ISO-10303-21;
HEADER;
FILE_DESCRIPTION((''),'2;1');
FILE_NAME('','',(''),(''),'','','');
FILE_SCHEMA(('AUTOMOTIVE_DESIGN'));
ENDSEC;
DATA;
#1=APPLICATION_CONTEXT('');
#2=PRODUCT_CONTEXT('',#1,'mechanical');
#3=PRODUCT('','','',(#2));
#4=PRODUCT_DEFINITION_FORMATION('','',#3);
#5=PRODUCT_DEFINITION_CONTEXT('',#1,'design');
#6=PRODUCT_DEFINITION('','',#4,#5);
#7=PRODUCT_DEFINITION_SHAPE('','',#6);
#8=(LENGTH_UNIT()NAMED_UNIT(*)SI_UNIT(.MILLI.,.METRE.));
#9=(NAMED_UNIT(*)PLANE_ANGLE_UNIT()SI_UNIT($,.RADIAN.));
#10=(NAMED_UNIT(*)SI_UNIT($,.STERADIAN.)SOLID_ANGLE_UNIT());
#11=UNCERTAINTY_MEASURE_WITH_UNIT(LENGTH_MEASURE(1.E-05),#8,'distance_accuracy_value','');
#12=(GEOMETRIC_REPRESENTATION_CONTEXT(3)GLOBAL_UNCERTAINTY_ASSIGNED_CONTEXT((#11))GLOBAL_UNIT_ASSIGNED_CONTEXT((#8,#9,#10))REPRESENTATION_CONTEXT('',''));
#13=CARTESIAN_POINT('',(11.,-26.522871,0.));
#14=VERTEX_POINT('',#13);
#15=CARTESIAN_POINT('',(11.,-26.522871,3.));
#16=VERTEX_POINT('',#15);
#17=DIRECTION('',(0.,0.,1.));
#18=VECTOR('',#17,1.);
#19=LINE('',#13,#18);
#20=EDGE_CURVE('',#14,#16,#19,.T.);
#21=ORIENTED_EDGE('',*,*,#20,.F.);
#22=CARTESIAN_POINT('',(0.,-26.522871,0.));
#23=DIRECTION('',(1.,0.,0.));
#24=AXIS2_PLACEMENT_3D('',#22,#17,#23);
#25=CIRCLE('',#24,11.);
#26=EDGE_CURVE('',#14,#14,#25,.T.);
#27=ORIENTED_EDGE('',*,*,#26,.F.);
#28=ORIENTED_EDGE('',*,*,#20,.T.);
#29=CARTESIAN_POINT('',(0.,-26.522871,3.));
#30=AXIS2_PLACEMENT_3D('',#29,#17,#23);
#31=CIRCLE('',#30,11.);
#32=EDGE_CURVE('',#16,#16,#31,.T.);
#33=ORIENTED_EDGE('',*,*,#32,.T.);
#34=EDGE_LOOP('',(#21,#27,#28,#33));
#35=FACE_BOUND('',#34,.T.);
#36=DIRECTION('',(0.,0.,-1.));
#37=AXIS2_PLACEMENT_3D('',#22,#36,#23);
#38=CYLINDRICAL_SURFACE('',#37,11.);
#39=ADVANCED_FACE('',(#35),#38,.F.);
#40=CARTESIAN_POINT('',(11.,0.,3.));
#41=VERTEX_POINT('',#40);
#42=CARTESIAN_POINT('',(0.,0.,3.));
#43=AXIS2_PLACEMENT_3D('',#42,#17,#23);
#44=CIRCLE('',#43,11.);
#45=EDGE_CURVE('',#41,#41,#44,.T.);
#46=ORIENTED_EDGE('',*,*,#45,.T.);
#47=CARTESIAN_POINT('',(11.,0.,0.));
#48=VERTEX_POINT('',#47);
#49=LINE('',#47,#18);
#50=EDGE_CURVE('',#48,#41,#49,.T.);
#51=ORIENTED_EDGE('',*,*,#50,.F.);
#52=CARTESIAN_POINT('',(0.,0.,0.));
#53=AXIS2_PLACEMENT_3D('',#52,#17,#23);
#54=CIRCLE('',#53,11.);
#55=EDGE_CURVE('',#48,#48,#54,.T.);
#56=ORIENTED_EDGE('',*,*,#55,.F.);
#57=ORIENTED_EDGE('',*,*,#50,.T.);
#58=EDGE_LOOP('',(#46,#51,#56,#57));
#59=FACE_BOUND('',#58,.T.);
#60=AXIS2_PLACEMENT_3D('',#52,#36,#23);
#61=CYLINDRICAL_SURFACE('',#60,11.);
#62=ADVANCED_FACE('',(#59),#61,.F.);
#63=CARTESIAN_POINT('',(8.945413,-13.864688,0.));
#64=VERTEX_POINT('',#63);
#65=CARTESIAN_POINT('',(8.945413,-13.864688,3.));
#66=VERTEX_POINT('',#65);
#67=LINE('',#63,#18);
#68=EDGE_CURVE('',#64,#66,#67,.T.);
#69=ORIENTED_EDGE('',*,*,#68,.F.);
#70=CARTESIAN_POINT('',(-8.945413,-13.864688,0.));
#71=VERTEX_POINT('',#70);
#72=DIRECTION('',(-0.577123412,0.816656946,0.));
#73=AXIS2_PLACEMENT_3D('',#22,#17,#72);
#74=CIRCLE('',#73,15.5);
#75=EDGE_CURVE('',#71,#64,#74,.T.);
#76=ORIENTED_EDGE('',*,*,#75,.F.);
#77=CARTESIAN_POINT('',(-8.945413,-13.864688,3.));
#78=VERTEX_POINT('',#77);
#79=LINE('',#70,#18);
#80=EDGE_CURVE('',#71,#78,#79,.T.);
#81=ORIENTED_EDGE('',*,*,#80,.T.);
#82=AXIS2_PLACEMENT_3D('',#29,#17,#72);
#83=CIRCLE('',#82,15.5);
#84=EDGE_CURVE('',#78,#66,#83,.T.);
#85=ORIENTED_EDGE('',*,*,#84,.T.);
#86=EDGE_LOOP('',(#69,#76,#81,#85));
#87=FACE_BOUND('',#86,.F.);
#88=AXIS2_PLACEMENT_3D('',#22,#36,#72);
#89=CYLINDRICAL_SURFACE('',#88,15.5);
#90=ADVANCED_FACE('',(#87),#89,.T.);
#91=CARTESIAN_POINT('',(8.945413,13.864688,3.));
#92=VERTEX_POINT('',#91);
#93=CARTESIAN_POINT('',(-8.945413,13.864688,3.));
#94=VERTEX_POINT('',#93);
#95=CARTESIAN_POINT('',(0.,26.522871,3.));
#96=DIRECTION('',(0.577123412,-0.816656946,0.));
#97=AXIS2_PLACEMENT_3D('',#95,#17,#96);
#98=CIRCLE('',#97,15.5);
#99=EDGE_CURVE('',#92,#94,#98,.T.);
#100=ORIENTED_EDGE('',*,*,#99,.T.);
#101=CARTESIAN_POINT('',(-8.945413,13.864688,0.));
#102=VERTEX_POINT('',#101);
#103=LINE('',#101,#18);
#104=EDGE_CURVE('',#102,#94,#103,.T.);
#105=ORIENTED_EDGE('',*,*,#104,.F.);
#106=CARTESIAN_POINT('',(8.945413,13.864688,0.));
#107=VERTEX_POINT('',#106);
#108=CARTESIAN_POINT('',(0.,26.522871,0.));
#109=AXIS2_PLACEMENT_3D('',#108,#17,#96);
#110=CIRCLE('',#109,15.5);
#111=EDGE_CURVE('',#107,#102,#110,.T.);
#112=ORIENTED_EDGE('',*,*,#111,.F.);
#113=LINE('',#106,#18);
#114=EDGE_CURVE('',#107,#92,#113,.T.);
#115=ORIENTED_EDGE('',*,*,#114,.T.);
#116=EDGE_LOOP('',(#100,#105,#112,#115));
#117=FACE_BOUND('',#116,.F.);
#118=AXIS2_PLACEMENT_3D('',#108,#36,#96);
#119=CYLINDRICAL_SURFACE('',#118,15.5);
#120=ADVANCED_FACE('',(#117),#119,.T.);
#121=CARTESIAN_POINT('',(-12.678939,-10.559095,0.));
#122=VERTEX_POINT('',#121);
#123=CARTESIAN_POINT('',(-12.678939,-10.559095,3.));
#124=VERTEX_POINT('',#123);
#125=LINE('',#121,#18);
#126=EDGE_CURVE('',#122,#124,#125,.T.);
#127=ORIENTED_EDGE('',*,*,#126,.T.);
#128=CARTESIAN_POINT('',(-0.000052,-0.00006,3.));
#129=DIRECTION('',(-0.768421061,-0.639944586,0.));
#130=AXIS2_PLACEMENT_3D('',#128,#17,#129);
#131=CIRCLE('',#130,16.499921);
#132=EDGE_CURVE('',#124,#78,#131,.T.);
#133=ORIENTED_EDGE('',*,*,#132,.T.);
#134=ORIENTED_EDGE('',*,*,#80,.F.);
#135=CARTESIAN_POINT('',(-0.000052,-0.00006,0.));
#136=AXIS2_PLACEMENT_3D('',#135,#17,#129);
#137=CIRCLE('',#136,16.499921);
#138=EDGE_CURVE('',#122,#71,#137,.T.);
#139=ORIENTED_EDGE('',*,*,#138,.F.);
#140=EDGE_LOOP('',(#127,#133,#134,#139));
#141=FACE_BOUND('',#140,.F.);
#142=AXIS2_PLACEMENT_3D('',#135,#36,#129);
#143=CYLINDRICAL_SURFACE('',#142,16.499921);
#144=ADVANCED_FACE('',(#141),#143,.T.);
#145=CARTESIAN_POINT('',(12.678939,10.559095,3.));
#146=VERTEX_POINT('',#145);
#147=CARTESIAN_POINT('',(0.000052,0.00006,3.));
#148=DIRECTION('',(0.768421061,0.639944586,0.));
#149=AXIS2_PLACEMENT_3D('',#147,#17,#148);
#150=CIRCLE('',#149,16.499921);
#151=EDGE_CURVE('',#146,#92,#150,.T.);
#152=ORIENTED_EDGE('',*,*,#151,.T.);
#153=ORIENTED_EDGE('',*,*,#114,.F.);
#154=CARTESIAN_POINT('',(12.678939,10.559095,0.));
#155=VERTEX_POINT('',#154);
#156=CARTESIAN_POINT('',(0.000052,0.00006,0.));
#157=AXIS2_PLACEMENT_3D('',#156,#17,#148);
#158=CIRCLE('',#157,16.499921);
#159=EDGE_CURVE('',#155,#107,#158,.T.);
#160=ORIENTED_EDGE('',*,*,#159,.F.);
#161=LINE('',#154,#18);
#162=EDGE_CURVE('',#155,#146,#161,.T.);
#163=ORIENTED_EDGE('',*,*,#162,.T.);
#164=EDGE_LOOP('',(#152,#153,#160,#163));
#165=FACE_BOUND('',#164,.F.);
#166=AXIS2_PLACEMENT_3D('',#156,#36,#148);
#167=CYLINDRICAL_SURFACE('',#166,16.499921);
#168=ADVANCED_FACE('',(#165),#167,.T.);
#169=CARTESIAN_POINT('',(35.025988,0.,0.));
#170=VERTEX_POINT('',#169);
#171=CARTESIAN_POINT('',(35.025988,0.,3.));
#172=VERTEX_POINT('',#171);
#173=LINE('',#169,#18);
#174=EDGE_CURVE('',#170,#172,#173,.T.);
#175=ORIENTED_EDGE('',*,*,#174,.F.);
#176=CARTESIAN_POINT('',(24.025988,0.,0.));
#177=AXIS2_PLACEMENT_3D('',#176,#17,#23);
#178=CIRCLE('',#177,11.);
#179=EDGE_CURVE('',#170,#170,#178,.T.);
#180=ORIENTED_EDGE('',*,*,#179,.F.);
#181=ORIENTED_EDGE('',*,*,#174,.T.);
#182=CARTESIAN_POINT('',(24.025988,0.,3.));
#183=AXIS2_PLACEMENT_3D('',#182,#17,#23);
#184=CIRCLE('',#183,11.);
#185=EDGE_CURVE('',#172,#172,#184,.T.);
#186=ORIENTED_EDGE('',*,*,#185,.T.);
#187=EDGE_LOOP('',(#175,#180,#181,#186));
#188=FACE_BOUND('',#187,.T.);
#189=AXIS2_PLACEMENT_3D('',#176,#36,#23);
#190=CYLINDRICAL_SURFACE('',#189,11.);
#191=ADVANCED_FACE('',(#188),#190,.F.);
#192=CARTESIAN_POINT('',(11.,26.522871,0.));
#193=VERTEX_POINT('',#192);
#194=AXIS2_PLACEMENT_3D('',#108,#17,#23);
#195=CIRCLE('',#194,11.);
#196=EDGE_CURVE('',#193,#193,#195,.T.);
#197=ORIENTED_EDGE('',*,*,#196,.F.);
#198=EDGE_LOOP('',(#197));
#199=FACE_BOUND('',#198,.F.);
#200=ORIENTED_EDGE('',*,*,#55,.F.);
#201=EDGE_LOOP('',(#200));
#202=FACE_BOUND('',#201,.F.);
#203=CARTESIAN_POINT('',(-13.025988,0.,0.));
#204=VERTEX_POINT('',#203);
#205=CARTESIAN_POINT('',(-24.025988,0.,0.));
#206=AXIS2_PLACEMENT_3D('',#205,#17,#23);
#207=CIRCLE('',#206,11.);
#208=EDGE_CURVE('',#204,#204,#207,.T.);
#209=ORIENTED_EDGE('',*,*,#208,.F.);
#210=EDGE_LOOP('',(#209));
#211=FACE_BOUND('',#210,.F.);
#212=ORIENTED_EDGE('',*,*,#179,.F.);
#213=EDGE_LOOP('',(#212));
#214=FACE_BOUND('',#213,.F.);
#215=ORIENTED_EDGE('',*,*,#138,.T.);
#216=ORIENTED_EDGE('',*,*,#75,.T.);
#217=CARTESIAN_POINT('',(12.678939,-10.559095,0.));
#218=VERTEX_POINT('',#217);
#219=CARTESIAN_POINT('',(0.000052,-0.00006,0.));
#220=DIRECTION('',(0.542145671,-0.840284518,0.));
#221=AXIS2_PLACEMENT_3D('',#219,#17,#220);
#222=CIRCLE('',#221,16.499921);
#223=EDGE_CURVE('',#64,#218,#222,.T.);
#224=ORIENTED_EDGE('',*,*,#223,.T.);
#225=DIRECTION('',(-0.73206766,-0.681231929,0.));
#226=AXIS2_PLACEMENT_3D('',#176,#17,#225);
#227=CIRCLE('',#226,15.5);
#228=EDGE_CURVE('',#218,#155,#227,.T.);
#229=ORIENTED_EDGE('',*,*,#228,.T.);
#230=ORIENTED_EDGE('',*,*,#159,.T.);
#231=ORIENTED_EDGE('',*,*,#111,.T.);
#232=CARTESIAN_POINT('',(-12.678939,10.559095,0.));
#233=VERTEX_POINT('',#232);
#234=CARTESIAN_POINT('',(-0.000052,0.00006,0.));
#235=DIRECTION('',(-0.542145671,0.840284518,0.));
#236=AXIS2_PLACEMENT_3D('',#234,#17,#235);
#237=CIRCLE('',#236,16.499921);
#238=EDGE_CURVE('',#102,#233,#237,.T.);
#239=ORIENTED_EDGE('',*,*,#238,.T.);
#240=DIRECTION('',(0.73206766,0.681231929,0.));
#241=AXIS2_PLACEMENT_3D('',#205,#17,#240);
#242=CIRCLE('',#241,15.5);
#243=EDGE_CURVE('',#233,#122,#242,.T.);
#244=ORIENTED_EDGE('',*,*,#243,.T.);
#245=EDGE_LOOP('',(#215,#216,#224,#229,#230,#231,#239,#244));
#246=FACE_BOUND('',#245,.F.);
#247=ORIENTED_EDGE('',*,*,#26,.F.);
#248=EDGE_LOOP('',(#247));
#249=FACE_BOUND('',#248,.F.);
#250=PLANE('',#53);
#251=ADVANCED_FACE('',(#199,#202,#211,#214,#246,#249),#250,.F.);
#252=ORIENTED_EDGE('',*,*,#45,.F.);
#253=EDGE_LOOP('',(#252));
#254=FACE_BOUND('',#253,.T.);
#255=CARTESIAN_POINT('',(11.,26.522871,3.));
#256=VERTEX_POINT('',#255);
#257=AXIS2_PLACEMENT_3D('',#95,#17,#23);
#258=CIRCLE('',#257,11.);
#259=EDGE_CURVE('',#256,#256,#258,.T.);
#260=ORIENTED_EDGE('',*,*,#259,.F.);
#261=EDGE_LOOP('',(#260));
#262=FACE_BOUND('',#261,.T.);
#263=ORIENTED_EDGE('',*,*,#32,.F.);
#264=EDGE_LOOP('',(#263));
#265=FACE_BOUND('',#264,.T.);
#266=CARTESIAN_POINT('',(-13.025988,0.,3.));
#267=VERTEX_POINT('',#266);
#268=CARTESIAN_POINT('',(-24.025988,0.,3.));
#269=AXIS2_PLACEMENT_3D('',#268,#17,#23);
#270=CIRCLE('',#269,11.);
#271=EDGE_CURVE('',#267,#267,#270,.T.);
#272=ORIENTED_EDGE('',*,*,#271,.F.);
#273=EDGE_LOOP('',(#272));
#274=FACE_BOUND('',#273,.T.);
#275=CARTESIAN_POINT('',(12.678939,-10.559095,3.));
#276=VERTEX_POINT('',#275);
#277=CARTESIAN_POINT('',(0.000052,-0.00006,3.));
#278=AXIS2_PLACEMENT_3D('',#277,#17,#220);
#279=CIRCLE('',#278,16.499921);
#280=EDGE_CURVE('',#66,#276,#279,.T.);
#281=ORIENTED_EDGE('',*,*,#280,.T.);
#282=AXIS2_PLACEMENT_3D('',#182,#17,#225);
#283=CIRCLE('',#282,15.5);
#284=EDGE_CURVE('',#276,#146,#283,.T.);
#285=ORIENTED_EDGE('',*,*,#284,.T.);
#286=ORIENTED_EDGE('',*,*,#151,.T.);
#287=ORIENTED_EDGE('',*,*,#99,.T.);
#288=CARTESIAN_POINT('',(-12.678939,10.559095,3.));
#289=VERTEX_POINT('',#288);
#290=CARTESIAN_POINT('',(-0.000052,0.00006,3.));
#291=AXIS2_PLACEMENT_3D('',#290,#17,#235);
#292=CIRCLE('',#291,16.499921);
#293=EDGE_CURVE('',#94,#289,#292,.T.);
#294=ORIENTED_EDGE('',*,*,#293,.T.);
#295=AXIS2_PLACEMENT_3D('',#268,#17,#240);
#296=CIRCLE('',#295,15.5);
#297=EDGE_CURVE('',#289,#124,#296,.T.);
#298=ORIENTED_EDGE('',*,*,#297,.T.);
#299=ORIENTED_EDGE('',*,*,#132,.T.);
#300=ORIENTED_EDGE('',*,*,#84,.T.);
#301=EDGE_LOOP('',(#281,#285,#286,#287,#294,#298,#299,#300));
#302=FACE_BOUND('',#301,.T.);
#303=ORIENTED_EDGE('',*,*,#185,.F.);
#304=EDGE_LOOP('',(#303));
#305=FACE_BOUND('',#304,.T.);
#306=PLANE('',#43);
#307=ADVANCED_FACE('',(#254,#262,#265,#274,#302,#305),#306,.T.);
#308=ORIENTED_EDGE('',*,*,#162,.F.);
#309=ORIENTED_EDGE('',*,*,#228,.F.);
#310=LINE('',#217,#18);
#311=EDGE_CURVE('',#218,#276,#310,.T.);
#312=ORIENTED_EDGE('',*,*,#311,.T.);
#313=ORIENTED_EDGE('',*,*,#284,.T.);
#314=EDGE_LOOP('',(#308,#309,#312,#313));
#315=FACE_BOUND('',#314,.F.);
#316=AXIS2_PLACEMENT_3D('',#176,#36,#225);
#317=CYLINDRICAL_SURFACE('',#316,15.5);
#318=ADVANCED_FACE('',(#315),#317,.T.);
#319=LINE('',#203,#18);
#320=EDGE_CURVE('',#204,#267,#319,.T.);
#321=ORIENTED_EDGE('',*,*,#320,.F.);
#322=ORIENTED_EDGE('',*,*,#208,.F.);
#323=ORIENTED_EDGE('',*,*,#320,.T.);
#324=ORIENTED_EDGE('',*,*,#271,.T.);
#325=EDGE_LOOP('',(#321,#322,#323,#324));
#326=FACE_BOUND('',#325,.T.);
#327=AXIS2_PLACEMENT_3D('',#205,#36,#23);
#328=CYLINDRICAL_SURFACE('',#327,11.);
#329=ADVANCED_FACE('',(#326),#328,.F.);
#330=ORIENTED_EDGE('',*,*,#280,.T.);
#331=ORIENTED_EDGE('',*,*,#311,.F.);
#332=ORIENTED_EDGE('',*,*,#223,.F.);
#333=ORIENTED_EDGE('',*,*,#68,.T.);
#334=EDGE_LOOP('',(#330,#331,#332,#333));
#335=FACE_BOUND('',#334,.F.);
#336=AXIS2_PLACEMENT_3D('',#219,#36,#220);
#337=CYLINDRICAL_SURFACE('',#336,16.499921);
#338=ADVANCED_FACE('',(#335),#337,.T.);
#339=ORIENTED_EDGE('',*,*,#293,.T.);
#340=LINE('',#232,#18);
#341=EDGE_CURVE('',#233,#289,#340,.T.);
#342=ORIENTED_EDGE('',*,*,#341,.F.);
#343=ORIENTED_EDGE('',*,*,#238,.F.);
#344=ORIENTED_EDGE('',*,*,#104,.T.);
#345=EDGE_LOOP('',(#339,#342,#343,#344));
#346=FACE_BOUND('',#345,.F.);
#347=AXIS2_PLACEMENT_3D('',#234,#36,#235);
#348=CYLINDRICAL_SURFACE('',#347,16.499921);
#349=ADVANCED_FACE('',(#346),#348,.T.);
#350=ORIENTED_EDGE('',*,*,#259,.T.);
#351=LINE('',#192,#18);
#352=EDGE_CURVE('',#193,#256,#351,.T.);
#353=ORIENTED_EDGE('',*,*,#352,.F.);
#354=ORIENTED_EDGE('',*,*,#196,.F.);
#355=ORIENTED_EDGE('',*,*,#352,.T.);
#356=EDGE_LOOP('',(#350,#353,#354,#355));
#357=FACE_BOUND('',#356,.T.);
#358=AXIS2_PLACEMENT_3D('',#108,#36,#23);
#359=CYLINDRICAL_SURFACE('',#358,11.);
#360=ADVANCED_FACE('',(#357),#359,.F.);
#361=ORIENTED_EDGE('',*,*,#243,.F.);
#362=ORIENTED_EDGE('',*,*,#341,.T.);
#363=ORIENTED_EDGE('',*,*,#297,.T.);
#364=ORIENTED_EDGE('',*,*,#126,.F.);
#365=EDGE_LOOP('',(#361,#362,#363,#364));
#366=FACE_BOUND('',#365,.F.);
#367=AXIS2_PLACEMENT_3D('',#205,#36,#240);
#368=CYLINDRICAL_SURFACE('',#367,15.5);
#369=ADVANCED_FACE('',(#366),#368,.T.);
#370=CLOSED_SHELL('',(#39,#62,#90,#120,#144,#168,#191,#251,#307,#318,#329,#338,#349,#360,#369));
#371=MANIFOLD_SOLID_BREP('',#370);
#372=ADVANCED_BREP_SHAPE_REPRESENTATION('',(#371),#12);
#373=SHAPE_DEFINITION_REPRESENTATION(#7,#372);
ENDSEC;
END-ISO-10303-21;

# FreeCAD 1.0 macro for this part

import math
import FreeCAD as App
import Part
import Sketcher
from FreeCAD import Vector
Q = App.Units.Quantity

doc = App.newDocument("Part")
body = doc.addObject("PartDesign::Body", "Body")

sketch1 = body.newObject("Sketcher::SketchObject", "Sketch")
sketch1.AttachmentSupport = (doc.getObject("XY_Plane"), [""])
sketch1.MapMode = "FlatFace"
sketch1.addGeometry(Part.ArcOfCircle(Part.Circle(Vector(24, 0, 0), Vector(0, 0, 1), 15.5), math.radians(-137), math.radians(137)), False)
sketch1.addGeometry(Part.ArcOfCircle(Part.Circle(Vector(0, 0, 0), Vector(0, 0, 1), 16.5), math.radians(39.79), math.radians(57.17)), False)
sketch1.addGeometry(Part.ArcOfCircle(Part.Circle(Vector(0, 26.5, 0), Vector(0, 0, 1), 15.5), math.radians(-55), math.radians(235)), False)
sketch1.addGeometry(Part.ArcOfCircle(Part.Circle(Vector(0, 0, 0), Vector(0, 0, 1), 16.5), math.radians(122.83), math.radians(140.21)), False)
sketch1.addGeometry(Part.ArcOfCircle(Part.Circle(Vector(-24, 0, 0), Vector(0, 0, 1), 15.5), math.radians(43), math.radians(317)), False)
sketch1.addGeometry(Part.ArcOfCircle(Part.Circle(Vector(0, 0, 0), Vector(0, 0, 1), 16.5), math.radians(-140.21), math.radians(-122.83)), False)
sketch1.addGeometry(Part.ArcOfCircle(Part.Circle(Vector(0, -26.5, 0), Vector(0, 0, 1), 15.5), math.radians(125), math.radians(415)), False)
sketch1.addGeometry(Part.ArcOfCircle(Part.Circle(Vector(0, 0, 0), Vector(0, 0, 1), 16.5), math.radians(-57.17), math.radians(-39.79)), False)
sketch1.addGeometry(Part.Circle(Vector(0, -26.5, 0), Vector(0, 0, 1), 11), False)
sketch1.addGeometry(Part.Circle(Vector(-24, 0, 0), Vector(0, 0, 1), 11), False)
sketch1.addGeometry(Part.Circle(Vector(0, 0, 0), Vector(0, 0, 1), 11), False)
sketch1.addGeometry(Part.Circle(Vector(24, 0, 0), Vector(0, 0, 1), 11), False)
sketch1.addGeometry(Part.Circle(Vector(0, 26.5, 0), Vector(0, 0, 1), 11), False)
sketch1.addConstraint(Sketcher.Constraint("Coincident", 0, 2, 1, 1))
sketch1.addConstraint(Sketcher.Constraint("Coincident", 1, 2, 2, 1))
sketch1.addConstraint(Sketcher.Constraint("Coincident", 2, 2, 3, 1))
sketch1.addConstraint(Sketcher.Constraint("Coincident", 3, 2, 4, 1))
sketch1.addConstraint(Sketcher.Constraint("Coincident", 4, 2, 5, 1))
sketch1.addConstraint(Sketcher.Constraint("Coincident", 5, 2, 6, 1))
sketch1.addConstraint(Sketcher.Constraint("Coincident", 6, 2, 7, 1))
sketch1.addConstraint(Sketcher.Constraint("Coincident", 7, 2, 0, 1))
sketch1.addConstraint(Sketcher.Constraint("Coincident", 10, 3, -1, 1))
sketch1.addConstraint(Sketcher.Constraint("Coincident", 8, 3, 6, 3))
sketch1.addConstraint(Sketcher.Constraint("Coincident", 9, 3, 4, 3))
sketch1.addConstraint(Sketcher.Constraint("Coincident", 11, 3, 0, 3))
sketch1.addConstraint(Sketcher.Constraint("Coincident", 12, 3, 2, 3))
sketch1.addConstraint(Sketcher.Constraint("Equal", 0, 2))
sketch1.addConstraint(Sketcher.Constraint("Equal", 1, 3))
sketch1.addConstraint(Sketcher.Constraint("Equal", 2, 4))
sketch1.addConstraint(Sketcher.Constraint("Equal", 3, 5))
sketch1.addConstraint(Sketcher.Constraint("Equal", 4, 6))
sketch1.addConstraint(Sketcher.Constraint("Equal", 5, 7))
sketch1.addConstraint(Sketcher.Constraint("Equal", 8, 9))
sketch1.addConstraint(Sketcher.Constraint("Equal", 9, 10))
sketch1.addConstraint(Sketcher.Constraint("Equal", 10, 11))
sketch1.addConstraint(Sketcher.Constraint("Equal", 11, 12))
sketch1.addConstraint(Sketcher.Constraint("Symmetric", 0, 3, 4, 3, -1, 1))
sketch1.addConstraint(Sketcher.Constraint("Symmetric", 1, 3, 5, 3, -1, 1))
sketch1.addConstraint(Sketcher.Constraint("Symmetric", 2, 3, 6, 3, -1, 1))
sketch1.addConstraint(Sketcher.Constraint("Symmetric", 3, 3, 7, 3, -1, 1))
sketch1.addConstraint(Sketcher.Constraint("Symmetric", 1, 3, 3, 3, -2))
sketch1.addConstraint(Sketcher.Constraint("PointOnObject", 0, 3, -1))
sketch1.addConstraint(Sketcher.Constraint("PointOnObject", 2, 3, -2))
sketch1.addConstraint(Sketcher.Constraint("Diameter", 8, Q("22 mm")))
sketch1.addConstraint(Sketcher.Constraint("Radius", 0, Q("15.5 mm")))
sketch1.addConstraint(Sketcher.Constraint("Radius", 1, Q("16.499921 mm")))
sketch1.addConstraint(Sketcher.Constraint("DistanceY", -1, 1, 2, 3, Q("26.522871 mm")))
sketch1.addConstraint(Sketcher.Constraint("DistanceX", 9, 3, -1, 1, Q("24.025988 mm")))
sketch1.addConstraint(Sketcher.Constraint("DistanceX", -1, 1, 0, 2, Q("12.678939 mm")))
sketch1.addConstraint(Sketcher.Constraint("DistanceY", -1, 1, 1, 2, Q("13.864688 mm")))
pad1 = body.newObject("PartDesign::Pad", "Pad")
pad1.Profile = sketch1
pad1.Length = 3

doc.recompute()
